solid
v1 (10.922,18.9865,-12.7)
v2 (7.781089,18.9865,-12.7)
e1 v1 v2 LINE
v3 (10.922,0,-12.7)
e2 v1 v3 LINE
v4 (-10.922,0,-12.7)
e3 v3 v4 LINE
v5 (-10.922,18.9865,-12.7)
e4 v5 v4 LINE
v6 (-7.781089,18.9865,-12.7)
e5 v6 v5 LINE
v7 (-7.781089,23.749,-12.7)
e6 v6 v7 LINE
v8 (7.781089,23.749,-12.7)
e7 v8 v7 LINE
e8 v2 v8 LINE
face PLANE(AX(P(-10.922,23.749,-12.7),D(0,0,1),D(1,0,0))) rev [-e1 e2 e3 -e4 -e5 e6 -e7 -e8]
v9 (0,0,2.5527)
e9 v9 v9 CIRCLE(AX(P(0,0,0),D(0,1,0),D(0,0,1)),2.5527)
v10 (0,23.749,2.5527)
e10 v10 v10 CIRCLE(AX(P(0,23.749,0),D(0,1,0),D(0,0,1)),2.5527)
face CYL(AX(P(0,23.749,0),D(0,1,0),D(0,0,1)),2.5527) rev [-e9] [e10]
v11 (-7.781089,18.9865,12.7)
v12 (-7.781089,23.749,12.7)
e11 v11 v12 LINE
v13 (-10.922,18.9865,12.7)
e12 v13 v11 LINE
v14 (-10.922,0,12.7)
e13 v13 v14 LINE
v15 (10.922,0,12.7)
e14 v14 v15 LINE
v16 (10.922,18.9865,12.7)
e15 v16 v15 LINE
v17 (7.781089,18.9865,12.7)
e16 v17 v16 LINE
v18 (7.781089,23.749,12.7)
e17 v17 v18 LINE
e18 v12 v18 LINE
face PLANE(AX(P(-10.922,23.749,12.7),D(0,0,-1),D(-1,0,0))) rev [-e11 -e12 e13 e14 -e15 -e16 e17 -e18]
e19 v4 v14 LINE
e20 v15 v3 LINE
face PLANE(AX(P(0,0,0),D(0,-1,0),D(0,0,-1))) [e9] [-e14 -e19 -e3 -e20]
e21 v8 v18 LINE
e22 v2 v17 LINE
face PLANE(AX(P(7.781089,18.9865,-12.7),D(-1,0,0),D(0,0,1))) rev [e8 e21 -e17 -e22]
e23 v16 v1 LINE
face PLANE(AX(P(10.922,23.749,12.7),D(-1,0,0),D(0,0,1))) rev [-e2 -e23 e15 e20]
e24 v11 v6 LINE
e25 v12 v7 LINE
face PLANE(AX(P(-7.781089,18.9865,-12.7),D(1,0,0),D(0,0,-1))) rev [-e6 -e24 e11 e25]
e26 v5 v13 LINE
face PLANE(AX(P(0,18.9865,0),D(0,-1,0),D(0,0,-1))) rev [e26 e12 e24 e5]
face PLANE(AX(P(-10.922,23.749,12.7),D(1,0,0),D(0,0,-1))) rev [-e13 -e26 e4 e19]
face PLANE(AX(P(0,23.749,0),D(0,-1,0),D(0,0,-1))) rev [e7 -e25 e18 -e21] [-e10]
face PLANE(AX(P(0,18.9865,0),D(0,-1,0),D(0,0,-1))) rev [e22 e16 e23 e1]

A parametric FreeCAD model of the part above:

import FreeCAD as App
import Part
import Sketcher
Q = App.Units.Quantity

doc = App.newDocument("Part")
body = doc.addObject("PartDesign::Body", "Body")

# Sketch on XZ plane
sketch1 = body.newObject("Sketcher::SketchObject", "Sketch")
sketch1.AttachmentSupport = (doc.getObject("XZ_Plane"), [""])
sketch1.MapMode = "FlatFace"
sketch1.addGeometry([
    Part.LineSegment(App.Vector(-11, -13, 0), App.Vector(-11, 13, 0)),
    Part.LineSegment(App.Vector(-11, 13, 0), App.Vector(11, 13, 0)),
    Part.LineSegment(App.Vector(11, 13, 0), App.Vector(11, -13, 0)),
    Part.LineSegment(App.Vector(11, -13, 0), App.Vector(-11, -13, 0)),
], False)
sketch1.addConstraint([
    Sketcher.Constraint("Coincident", 0, 2, 1, 1),
    Sketcher.Constraint("Coincident", 1, 2, 2, 1),
    Sketcher.Constraint("Coincident", 2, 2, 3, 1),
    Sketcher.Constraint("Coincident", 3, 2, 0, 1),
    Sketcher.Constraint("Vertical", 0),
    Sketcher.Constraint("Horizontal", 1),
    Sketcher.Constraint("Vertical", 2),
    Sketcher.Constraint("Horizontal", 3),
    Sketcher.Constraint("Symmetric", 0, 2, 2, 2, -1, 1),
    Sketcher.Constraint("DistanceY", 0, 1, 0, 2, Q("1 in")),
    Sketcher.Constraint("DistanceX", 1, 1, 1, 2, Q("0.86 in")),
])
pad1 = body.newObject("PartDesign::Pad", "Pad")
pad1.Profile = sketch1
pad1.Length = Q("0.935 in")
pad1.Reversed = True

# Sketch on XZ plane
sketch2 = body.newObject("Sketcher::SketchObject", "Sketch001")
sketch2.AttachmentSupport = (doc.getObject("XZ_Plane"), [""])
sketch2.MapMode = "FlatFace"
sketch2.AttachmentOffset = App.Placement(App.Vector(0, 0, -0.935 * 25.4), App.Rotation())
sketch2.addGeometry(Part.Circle(App.Vector(0, 0, 0), App.Vector(0, 0, 1), 2.6), False)
sketch2.addConstraint([
    Sketcher.Constraint("Coincident", 0, 3, -1, 1),
    Sketcher.Constraint("Diameter", 0, Q("0.201 in")),
])
doc.recompute()
hole = body.newObject("PartDesign::Hole", "Hole")
hole.Profile = sketch2
hole.ThreadType = "None"
hole.Diameter = Q("0.201 in")
hole.DepthType = "ThroughAll"
hole.Reversed = True

# Sketch on XZ plane
sketch3 = body.newObject("Sketcher::SketchObject", "Sketch002")
sketch3.AttachmentSupport = (doc.getObject("XZ_Plane"), [""])
sketch3.MapMode = "FlatFace"
sketch3.AttachmentOffset = App.Placement(App.Vector(0, 0, -0.935 * 25.4), App.Rotation())
sketch3.addGeometry([
    Part.LineSegment(App.Vector(7.8, -12.7, 0), App.Vector(7.8, 12.7, 0)),  # 0
    Part.LineSegment(App.Vector(7.8, 12.7, 0), App.Vector(10.9, 12.7, 0)),  # 1
    Part.LineSegment(App.Vector(10.9, 12.7, 0), App.Vector(10.9, -12.7, 0)),  # 2
    Part.LineSegment(App.Vector(10.9, -12.7, 0), App.Vector(7.8, -12.7, 0)),  # 3
    Part.LineSegment(App.Vector(-10.9, -12.7, 0), App.Vector(-10.9, 12.7, 0)),  # 4
    Part.LineSegment(App.Vector(-10.9, 12.7, 0), App.Vector(-7.8, 12.7, 0)),  # 5
    Part.LineSegment(App.Vector(-7.8, 12.7, 0), App.Vector(-7.8, -12.7, 0)),  # 6
    Part.LineSegment(App.Vector(-7.8, -12.7, 0), App.Vector(-10.9, -12.7, 0)),  # 7
], False)
sketch3.addConstraint([
    Sketcher.Constraint("Coincident", 0, 2, 1, 1),
    Sketcher.Constraint("Coincident", 1, 2, 2, 1),
    Sketcher.Constraint("Coincident", 2, 2, 3, 1),
    Sketcher.Constraint("Coincident", 3, 2, 0, 1),
    Sketcher.Constraint("Coincident", 4, 2, 5, 1),
    Sketcher.Constraint("Coincident", 5, 2, 6, 1),
    Sketcher.Constraint("Coincident", 6, 2, 7, 1),
    Sketcher.Constraint("Coincident", 7, 2, 4, 1),
    Sketcher.Constraint("Vertical", 0),
    Sketcher.Constraint("Horizontal", 1),
    Sketcher.Constraint("Vertical", 2),
    Sketcher.Constraint("Horizontal", 3),
    Sketcher.Constraint("Vertical", 4),
    Sketcher.Constraint("Horizontal", 5),
    Sketcher.Constraint("Vertical", 6),
    Sketcher.Constraint("Horizontal", 7),
    Sketcher.Constraint("Symmetric", 2, 2, 4, 2, -1, 1),
    Sketcher.Constraint("Symmetric", 0, 2, 6, 2, -1, 1),
    Sketcher.Constraint("Horizontal", 1, 2, 4, 2),
    Sketcher.Constraint("DistanceY", 0, 1, 0, 2, Q("1 in")),
    Sketcher.Constraint("DistanceX", -1, 1, 1, 2, Q("0.43 in")),
    Sketcher.Constraint("DistanceX", 1, 1, 1, 2, 3.140911),
])
pocket1 = body.newObject("PartDesign::Pocket", "Pocket")
pocket1.Profile = sketch3
pocket1.Length = Q("0.1875 in")
pocket1.Reversed = True

doc.recompute()
